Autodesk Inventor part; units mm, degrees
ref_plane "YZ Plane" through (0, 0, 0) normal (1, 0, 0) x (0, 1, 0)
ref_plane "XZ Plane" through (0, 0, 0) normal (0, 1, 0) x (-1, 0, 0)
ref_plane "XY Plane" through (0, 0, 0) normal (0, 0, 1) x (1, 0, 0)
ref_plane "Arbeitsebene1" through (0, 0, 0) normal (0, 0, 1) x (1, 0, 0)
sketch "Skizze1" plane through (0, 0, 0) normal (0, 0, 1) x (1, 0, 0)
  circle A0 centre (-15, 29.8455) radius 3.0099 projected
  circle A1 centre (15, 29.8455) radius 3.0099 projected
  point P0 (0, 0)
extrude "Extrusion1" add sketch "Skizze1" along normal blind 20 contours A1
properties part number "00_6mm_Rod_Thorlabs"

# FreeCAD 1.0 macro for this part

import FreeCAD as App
import Part
import Sketcher
from FreeCAD import Vector
Q = App.Units.Quantity

doc = App.newDocument("Part")
body = doc.addObject("PartDesign::Body", "Body")

sketch1 = body.newObject("Sketcher::SketchObject", "Sketch")
sketch1.AttachmentSupport = (doc.getObject("XY_Plane"), [""])
sketch1.MapMode = "FlatFace"
sketch1.addGeometry(Part.Circle(Vector(15, 29.8, 0), Vector(0, 0, 1), 3), False)
sketch1.addConstraint([
    Sketcher.Constraint("Diameter", 0, Q("0.237 in")),
    Sketcher.Constraint("DistanceX", -1, 1, 0, 3, 15.0),
    Sketcher.Constraint("DistanceY", -1, 1, 0, 3, 29.8455),
])
pad1 = body.newObject("PartDesign::Pad", "Pad")
pad1.Profile = sketch1
pad1.Length = Q("0.7874016 in")

doc.recompute()
